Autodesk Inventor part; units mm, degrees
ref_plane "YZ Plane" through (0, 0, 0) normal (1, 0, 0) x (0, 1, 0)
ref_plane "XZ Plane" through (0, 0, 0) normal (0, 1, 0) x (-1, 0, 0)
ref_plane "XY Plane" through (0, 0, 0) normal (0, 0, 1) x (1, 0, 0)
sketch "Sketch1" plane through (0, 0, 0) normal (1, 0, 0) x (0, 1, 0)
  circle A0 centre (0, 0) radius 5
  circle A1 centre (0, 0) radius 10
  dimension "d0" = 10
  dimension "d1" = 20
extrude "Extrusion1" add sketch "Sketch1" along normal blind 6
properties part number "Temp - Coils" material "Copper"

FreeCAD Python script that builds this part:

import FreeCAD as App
import Part
import Sketcher

doc = App.newDocument("Part")
body = doc.addObject("PartDesign::Body", "Body")

sketch1 = body.newObject("Sketcher::SketchObject", "Sketch")
sketch1.AttachmentSupport = (doc.getObject("YZ_Plane"), [""])
sketch1.MapMode = "FlatFace"
sketch1.addGeometry([
    Part.Circle(App.Vector(0, 0, 0), App.Vector(0, 0, 1), 10),
    Part.Circle(App.Vector(0, 0, 0), App.Vector(0, 0, 1), 5),
], False)
sketch1.addConstraint([
    Sketcher.Constraint("Coincident", 0, 3, -1, 1),
    Sketcher.Constraint("Coincident", 1, 3, -1, 1),
    Sketcher.Constraint("Diameter", 0, 20.0),
    Sketcher.Constraint("Diameter", 1, 10.0),
])
pad1 = body.newObject("PartDesign::Pad", "Pad")
pad1.Profile = sketch1
pad1.Length = 6

doc.recompute()
